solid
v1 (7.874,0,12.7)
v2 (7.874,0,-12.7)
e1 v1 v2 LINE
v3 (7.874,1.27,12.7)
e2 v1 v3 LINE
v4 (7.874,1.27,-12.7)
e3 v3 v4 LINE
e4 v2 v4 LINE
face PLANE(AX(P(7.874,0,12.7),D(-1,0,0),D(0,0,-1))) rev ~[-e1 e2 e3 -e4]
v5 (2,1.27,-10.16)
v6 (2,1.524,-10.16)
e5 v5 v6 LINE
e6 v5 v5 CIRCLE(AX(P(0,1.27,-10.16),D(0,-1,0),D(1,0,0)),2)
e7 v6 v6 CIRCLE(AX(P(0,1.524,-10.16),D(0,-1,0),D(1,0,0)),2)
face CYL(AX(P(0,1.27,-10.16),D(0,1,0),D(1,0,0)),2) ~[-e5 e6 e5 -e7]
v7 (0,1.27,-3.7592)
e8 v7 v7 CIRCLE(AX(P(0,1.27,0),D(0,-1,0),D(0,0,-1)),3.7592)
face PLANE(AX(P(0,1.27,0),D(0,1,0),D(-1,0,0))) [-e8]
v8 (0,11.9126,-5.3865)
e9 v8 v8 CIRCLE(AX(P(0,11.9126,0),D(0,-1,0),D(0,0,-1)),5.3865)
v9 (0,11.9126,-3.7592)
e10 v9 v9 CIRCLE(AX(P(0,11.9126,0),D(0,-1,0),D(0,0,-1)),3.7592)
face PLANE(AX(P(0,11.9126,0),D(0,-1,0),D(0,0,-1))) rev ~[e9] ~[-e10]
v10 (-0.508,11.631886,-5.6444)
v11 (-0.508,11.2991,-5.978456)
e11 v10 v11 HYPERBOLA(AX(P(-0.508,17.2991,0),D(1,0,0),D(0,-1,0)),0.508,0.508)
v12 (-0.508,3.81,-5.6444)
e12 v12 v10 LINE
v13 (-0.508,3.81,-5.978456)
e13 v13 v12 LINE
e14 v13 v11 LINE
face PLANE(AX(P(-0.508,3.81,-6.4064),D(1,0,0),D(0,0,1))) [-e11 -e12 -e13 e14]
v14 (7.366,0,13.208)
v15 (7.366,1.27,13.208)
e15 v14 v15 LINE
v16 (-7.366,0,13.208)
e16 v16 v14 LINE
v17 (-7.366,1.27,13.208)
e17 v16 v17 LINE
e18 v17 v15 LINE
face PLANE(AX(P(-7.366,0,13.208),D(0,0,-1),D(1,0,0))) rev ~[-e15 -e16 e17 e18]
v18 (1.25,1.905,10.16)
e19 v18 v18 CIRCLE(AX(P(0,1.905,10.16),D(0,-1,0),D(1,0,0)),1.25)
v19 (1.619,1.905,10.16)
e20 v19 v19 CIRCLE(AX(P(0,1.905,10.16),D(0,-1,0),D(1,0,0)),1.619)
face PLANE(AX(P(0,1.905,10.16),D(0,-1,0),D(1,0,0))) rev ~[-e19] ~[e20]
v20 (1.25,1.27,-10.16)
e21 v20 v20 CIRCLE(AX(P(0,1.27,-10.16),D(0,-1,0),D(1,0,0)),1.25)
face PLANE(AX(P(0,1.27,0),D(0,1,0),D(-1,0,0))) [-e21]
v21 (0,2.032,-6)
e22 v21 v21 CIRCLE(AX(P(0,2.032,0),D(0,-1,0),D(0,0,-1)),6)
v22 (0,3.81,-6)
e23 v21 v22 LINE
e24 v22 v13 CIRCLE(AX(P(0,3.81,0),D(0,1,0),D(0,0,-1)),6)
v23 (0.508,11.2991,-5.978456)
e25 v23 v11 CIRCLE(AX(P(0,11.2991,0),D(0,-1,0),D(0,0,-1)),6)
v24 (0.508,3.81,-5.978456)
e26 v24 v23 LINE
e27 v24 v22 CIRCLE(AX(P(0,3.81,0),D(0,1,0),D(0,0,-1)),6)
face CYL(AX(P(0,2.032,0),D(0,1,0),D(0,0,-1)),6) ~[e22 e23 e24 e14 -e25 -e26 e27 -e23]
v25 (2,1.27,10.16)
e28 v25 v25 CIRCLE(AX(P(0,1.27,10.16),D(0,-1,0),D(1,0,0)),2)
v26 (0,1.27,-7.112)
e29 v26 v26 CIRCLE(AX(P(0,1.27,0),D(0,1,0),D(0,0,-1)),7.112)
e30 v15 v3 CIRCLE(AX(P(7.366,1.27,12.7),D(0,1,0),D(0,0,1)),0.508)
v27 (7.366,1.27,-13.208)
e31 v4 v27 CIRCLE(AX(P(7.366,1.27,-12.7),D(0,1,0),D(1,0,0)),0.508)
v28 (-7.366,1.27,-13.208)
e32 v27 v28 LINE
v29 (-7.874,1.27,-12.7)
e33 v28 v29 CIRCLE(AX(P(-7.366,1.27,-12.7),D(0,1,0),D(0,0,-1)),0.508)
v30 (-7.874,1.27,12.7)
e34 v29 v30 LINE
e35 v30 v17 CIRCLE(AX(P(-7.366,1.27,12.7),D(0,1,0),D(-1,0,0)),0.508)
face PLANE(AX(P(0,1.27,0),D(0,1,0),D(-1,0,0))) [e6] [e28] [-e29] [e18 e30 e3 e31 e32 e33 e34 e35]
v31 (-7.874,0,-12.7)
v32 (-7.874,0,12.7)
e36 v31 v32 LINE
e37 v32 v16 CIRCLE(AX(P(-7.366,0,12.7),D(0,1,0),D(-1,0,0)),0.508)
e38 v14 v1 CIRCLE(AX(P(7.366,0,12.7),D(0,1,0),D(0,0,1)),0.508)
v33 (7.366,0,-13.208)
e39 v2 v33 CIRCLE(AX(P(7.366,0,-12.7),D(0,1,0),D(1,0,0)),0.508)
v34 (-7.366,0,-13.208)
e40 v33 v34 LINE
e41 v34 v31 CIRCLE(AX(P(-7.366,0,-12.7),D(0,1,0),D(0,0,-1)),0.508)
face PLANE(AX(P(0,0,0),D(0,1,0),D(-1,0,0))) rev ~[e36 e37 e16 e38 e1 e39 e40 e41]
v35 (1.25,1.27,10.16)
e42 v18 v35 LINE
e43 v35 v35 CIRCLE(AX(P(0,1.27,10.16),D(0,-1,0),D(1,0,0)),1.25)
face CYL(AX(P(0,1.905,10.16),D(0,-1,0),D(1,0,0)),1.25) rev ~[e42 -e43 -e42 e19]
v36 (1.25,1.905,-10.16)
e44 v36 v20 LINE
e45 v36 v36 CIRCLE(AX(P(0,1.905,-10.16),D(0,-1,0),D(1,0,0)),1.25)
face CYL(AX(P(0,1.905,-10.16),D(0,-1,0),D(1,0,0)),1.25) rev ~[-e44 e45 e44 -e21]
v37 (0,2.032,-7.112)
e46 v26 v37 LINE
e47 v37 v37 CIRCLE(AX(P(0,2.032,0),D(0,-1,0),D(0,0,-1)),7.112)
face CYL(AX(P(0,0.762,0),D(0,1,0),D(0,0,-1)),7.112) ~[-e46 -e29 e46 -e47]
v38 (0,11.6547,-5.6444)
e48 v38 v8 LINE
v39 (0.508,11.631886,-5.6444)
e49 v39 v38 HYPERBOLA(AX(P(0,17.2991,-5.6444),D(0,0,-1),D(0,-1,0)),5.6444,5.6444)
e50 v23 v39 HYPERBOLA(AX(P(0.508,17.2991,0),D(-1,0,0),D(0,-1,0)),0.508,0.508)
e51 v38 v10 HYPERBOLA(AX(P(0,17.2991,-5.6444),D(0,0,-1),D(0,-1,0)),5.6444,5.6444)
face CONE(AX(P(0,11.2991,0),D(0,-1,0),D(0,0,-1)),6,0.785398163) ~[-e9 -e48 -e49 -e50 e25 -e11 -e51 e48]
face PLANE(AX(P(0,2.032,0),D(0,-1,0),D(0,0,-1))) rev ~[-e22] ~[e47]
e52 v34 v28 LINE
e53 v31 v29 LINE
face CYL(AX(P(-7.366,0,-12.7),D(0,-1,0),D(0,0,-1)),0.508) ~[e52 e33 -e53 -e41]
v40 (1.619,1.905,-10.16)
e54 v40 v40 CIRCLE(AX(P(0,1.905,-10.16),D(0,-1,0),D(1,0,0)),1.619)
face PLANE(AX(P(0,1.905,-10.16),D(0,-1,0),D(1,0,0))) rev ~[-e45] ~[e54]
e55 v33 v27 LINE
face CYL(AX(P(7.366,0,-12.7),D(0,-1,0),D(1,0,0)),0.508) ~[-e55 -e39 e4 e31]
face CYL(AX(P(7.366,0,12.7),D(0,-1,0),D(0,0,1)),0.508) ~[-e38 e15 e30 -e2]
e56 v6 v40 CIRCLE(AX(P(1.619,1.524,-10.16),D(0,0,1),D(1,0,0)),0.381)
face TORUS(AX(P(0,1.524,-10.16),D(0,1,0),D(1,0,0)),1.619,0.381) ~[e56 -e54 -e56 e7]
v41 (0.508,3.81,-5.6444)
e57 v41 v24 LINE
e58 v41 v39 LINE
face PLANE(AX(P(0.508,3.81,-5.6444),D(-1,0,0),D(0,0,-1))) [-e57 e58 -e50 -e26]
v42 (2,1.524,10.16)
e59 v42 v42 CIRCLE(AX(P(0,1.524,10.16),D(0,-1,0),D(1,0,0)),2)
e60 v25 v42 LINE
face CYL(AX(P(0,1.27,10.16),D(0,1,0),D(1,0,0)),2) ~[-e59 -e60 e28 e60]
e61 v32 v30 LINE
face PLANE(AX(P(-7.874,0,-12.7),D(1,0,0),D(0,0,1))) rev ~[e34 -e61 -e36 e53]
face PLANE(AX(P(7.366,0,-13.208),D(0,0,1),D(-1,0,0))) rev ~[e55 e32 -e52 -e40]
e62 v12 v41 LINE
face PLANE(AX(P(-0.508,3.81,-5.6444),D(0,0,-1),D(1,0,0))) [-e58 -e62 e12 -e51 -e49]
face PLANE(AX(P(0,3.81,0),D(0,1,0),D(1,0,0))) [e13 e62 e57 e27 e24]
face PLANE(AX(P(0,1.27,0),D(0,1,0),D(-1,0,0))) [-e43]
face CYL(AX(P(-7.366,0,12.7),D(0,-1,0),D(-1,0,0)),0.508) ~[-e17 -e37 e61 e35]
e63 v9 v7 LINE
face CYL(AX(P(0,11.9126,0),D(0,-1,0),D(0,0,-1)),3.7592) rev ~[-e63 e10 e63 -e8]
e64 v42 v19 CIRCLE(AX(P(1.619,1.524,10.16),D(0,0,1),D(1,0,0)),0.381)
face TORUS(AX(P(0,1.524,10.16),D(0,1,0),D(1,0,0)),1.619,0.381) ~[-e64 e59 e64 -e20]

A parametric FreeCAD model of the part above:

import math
import FreeCAD as App
import Part
import Sketcher

V = App.Vector
Q = App.Units.Quantity


def add_polygon(sketch, points):
    """Adds a closed chain of lines whose ends are joined by coincident constraints."""
    first, n = sketch.GeometryCount, len(points)
    for a, b in zip(points, points[1:] + points[:1]):
        sketch.addGeometry(Part.LineSegment(App.Vector(*a, 0), App.Vector(*b, 0)), False)
    for i in range(n):
        sketch.addConstraint(Sketcher.Constraint("Coincident", first + i, 2, first + (i + 1) % n, 1))

doc = App.newDocument("Part")
body = doc.addObject("PartDesign::Body", "Body")

# Sketch on XZ plane
sketch1 = doc.addObject("Sketcher::SketchObject", "Sketch")
body.addObject(sketch1)
sketch1.AttachmentSupport = (doc.XZ_Plane, [""])
sketch1.MapMode = "FlatFace"
sketch1.addGeometry(Part.ArcOfCircle(Part.Circle(V(-7.4, -12.7, 0), V(0, 0, 1), 0.5), math.radians(180), math.radians(270)), False)
sketch1.addGeometry(Part.LineSegment(V(-7.9, -12.7, 0), V(-7.9, 12.7, 0)), False)
sketch1.addGeometry(Part.ArcOfCircle(Part.Circle(V(-7.4, 12.7, 0), V(0, 0, 1), 0.5), math.radians(90), math.radians(180)), False)
sketch1.addGeometry(Part.LineSegment(V(-7.4, 13.2, 0), V(7.4, 13.2, 0)), False)
sketch1.addGeometry(Part.ArcOfCircle(Part.Circle(V(7.4, 12.7, 0), V(0, 0, 1), 0.5), math.radians(0), math.radians(90)), False)
sketch1.addGeometry(Part.LineSegment(V(7.9, 12.7, 0), V(7.9, -12.7, 0)), False)
sketch1.addGeometry(Part.ArcOfCircle(Part.Circle(V(7.4, -12.7, 0), V(0, 0, 1), 0.5), math.radians(-90), math.radians(0)), False)
sketch1.addGeometry(Part.LineSegment(V(7.4, -13.2, 0), V(-7.4, -13.2, 0)), False)
sketch1.addConstraint(Sketcher.Constraint("Tangent", 0, 1, 1, 1))
sketch1.addConstraint(Sketcher.Constraint("Tangent", 1, 2, 2, 2))
sketch1.addConstraint(Sketcher.Constraint("Tangent", 2, 1, 3, 1))
sketch1.addConstraint(Sketcher.Constraint("Tangent", 3, 2, 4, 2))
sketch1.addConstraint(Sketcher.Constraint("Tangent", 4, 1, 5, 1))
sketch1.addConstraint(Sketcher.Constraint("Tangent", 5, 2, 6, 2))
sketch1.addConstraint(Sketcher.Constraint("Tangent", 6, 1, 7, 1))
sketch1.addConstraint(Sketcher.Constraint("Tangent", 7, 2, 0, 2))
sketch1.addConstraint(Sketcher.Constraint("Vertical", 1))
sketch1.addConstraint(Sketcher.Constraint("Horizontal", 3))
sketch1.addConstraint(Sketcher.Constraint("Vertical", 5))
sketch1.addConstraint(Sketcher.Constraint("Horizontal", 7))
sketch1.addConstraint(Sketcher.Constraint("Equal", 0, 2))
sketch1.addConstraint(Sketcher.Constraint("Equal", 2, 4))
sketch1.addConstraint(Sketcher.Constraint("Equal", 4, 6))
sketch1.addConstraint(Sketcher.Constraint("Symmetric", 0, 3, 4, 3, -1, 1))
sketch1.addConstraint(Sketcher.Constraint("DistanceY", 1, 1, 1, 2, Q("1 in")))
sketch1.addConstraint(Sketcher.Constraint("Radius", 0, Q("0.02 in")))
sketch1.addConstraint(Sketcher.Constraint("DistanceX", 3, 1, 3, 2, Q("0.58 in")))
pad1 = doc.addObject("PartDesign::Pad", "Pad")
body.addObject(pad1)
pad1.Profile = sketch1
pad1.Length = Q("0.05 in")
pad1.Reversed = True

# Sketch on YZ plane
sketch2 = doc.addObject("Sketcher::SketchObject", "Sketch001")
body.addObject(sketch2)
sketch2.AttachmentSupport = (doc.YZ_Plane, [""])
sketch2.MapMode = "FlatFace"
add_polygon(sketch2, [(11.9, -5.4), (11.9, -3.8), (0.8, -3.8), (0.8, -7.1), (2, -7.1), (2, -6), (11.3, -6)])  # lines 0-6
sketch2.addConstraint(Sketcher.Constraint("Vertical", 0))
sketch2.addConstraint(Sketcher.Constraint("Horizontal", 1))
sketch2.addConstraint(Sketcher.Constraint("Vertical", 2))
sketch2.addConstraint(Sketcher.Constraint("Horizontal", 3))
sketch2.addConstraint(Sketcher.Constraint("Vertical", 4))
sketch2.addConstraint(Sketcher.Constraint("Horizontal", 5))
sketch2.addConstraint(Sketcher.Constraint("Angle", 6, Q("45 deg")))
sketch2.addConstraint(Sketcher.Constraint("DistanceX", 3, 1, 3, 2, Q("0.05 in")))
sketch2.addConstraint(Sketcher.Constraint("DistanceX", 1, 2, 1, 1, Q("0.439 in")))
sketch2.addConstraint(Sketcher.Constraint("DistanceY", 2, 2, 2, 1, Q("0.132 in")))
sketch2.addConstraint(Sketcher.Constraint("DistanceX", -1, 1, 1, 2, Q("0.03 in")))
sketch2.addConstraint(Sketcher.Constraint("DistanceY", 2, 2, -1, 1, Q("0.28 in")))
sketch2.addConstraint(Sketcher.Constraint("DistanceX", 5, 1, 5, 2, Q("9.267 mm")))
sketch2.addConstraint(Sketcher.Constraint("DistanceY", 0, 1, 0, 2, Q("1.6273 mm")))
revolution = doc.addObject("PartDesign::Revolution", "Revolution")
body.addObject(revolution)
revolution.Profile = sketch2
revolution.ReferenceAxis = (sketch2, ["H_Axis"])
revolution.Angle = 360

# Sketch on XZ plane
sketch3 = doc.addObject("Sketcher::SketchObject", "Sketch002")
body.addObject(sketch3)
sketch3.AttachmentSupport = (doc.XZ_Plane, [""])
sketch3.MapMode = "FlatFace"
sketch3.AttachmentOffset = App.Placement(V(0, 0, -0.15 * 25.4), App.Rotation())
add_polygon(sketch3, [(-0.5, -6.4), (-0.5, -5.6), (0.5, -5.6), (0.5, -6.4)])  # lines 0-3
sketch3.addConstraint(Sketcher.Constraint("Vertical", 0))
sketch3.addConstraint(Sketcher.Constraint("Horizontal", 1))
sketch3.addConstraint(Sketcher.Constraint("Vertical", 2))
sketch3.addConstraint(Sketcher.Constraint("Horizontal", 3))
sketch3.addConstraint(Sketcher.Constraint("DistanceX", 1, 1, 1, 2, Q("0.04 in")))
sketch3.addConstraint(Sketcher.Constraint("DistanceY", 0, 1, 0, 2, Q("0.03 in")))
sketch3.addConstraint(Sketcher.Constraint("DistanceX", 0, 2, -1, 1, Q("0.02 in")))
sketch3.addConstraint(Sketcher.Constraint("DistanceY", 0, 2, -1, 1, Q("5.6444 mm")))
pocket1 = doc.addObject("PartDesign::Pocket", "Pocket")
body.addObject(pocket1)
pocket1.Profile = sketch3
pocket1.Length = Q("1 in")

# Sketch on XY plane
sketch4 = doc.addObject("Sketcher::SketchObject", "Sketch003")
body.addObject(sketch4)
sketch4.AttachmentSupport = (doc.XY_Plane, [""])
sketch4.MapMode = "FlatFace"
sketch4.AttachmentOffset = App.Placement(V(0, 0, -0.4 * 25.4), App.Rotation())
sketch4.addGeometry(Part.LineSegment(V(1.25, 1.91, 0), V(1.25, 1.27, 0)), False)
sketch4.addGeometry(Part.LineSegment(V(1.25, 1.27, 0), V(2, 1.27, 0)), False)
sketch4.addGeometry(Part.LineSegment(V(2, 1.27, 0), V(2, 1.52, 0)), False)
sketch4.addGeometry(Part.ArcOfCircle(Part.Circle(V(1.62, 1.52, 0), V(0, 0, 1), 0.38), math.radians(0), math.radians(90)), False)
sketch4.addGeometry(Part.LineSegment(V(1.62, 1.91, 0), V(1.25, 1.91, 0)), False)
sketch4.addConstraint(Sketcher.Constraint("Coincident", 0, 2, 1, 1))
sketch4.addConstraint(Sketcher.Constraint("Coincident", 1, 2, 2, 1))
sketch4.addConstraint(Sketcher.Constraint("Tangent", 2, 2, 3, 1))
sketch4.addConstraint(Sketcher.Constraint("Tangent", 3, 2, 4, 1))
sketch4.addConstraint(Sketcher.Constraint("Coincident", 4, 2, 0, 1))
sketch4.addConstraint(Sketcher.Constraint("Vertical", 0))
sketch4.addConstraint(Sketcher.Constraint("Horizontal", 1))
sketch4.addConstraint(Sketcher.Constraint("Vertical", 2))
sketch4.addConstraint(Sketcher.Constraint("Horizontal", 4))
sketch4.addConstraint(Sketcher.Constraint("Radius", 3, Q("0.015 in")))
sketch4.addConstraint(Sketcher.Constraint("DistanceY", 2, 1, 2, 2, Q("0.01 in")))
sketch4.addConstraint(Sketcher.Constraint("DistanceY", -1, 1, 3, 3, Q("0.06 in")))
sketch4.addConstraint(Sketcher.Constraint("DistanceX", 1, 1, 1, 2, Q("0.75 mm")))
sketch4.addConstraint(Sketcher.Constraint("DistanceX", -1, 1, 3, 3, Q("1.619 mm")))
revolution2 = doc.addObject("PartDesign::Revolution", "Revolution001")
body.addObject(revolution2)
revolution2.Profile = sketch4
revolution2.ReferenceAxis = (sketch4, ["V_Axis"])
revolution2.Angle = 360

# Sketch on XY plane
sketch5 = doc.addObject("Sketcher::SketchObject", "Sketch004")
body.addObject(sketch5)
sketch5.AttachmentSupport = (doc.XY_Plane, [""])
sketch5.MapMode = "FlatFace"
sketch5.AttachmentOffset = App.Placement(V(0, 0, 0.4 * 25.4), App.Rotation())
sketch5.addGeometry(Part.LineSegment(V(1.25, 1.91, 0), V(1.25, 1.27, 0)), False)
sketch5.addGeometry(Part.LineSegment(V(1.25, 1.27, 0), V(2, 1.27, 0)), False)
sketch5.addGeometry(Part.LineSegment(V(2, 1.27, 0), V(2, 1.52, 0)), False)
sketch5.addGeometry(Part.ArcOfCircle(Part.Circle(V(1.62, 1.52, 0), V(0, 0, 1), 0.38), math.radians(0), math.radians(90)), False)
sketch5.addGeometry(Part.LineSegment(V(1.62, 1.91, 0), V(1.25, 1.91, 0)), False)
sketch5.addConstraint(Sketcher.Constraint("Coincident", 0, 2, 1, 1))
sketch5.addConstraint(Sketcher.Constraint("Coincident", 1, 2, 2, 1))
sketch5.addConstraint(Sketcher.Constraint("Tangent", 2, 2, 3, 1))
sketch5.addConstraint(Sketcher.Constraint("Tangent", 3, 2, 4, 1))
sketch5.addConstraint(Sketcher.Constraint("Coincident", 4, 2, 0, 1))
sketch5.addConstraint(Sketcher.Constraint("Vertical", 0))
sketch5.addConstraint(Sketcher.Constraint("Horizontal", 1))
sketch5.addConstraint(Sketcher.Constraint("Vertical", 2))
sketch5.addConstraint(Sketcher.Constraint("Horizontal", 4))
sketch5.addConstraint(Sketcher.Constraint("Radius", 3, Q("0.015 in")))
sketch5.addConstraint(Sketcher.Constraint("DistanceY", 2, 1, 2, 2, Q("0.01 in")))
sketch5.addConstraint(Sketcher.Constraint("DistanceY", -1, 1, 3, 3, Q("0.06 in")))
sketch5.addConstraint(Sketcher.Constraint("DistanceX", 1, 1, 1, 2, Q("0.75 mm")))
sketch5.addConstraint(Sketcher.Constraint("DistanceX", -1, 1, 3, 3, Q("1.619 mm")))
revolution3 = doc.addObject("PartDesign::Revolution", "Revolution002")
body.addObject(revolution3)
revolution3.Profile = sketch5
revolution3.ReferenceAxis = (sketch5, ["V_Axis"])
revolution3.Angle = 360

doc.recompute()
